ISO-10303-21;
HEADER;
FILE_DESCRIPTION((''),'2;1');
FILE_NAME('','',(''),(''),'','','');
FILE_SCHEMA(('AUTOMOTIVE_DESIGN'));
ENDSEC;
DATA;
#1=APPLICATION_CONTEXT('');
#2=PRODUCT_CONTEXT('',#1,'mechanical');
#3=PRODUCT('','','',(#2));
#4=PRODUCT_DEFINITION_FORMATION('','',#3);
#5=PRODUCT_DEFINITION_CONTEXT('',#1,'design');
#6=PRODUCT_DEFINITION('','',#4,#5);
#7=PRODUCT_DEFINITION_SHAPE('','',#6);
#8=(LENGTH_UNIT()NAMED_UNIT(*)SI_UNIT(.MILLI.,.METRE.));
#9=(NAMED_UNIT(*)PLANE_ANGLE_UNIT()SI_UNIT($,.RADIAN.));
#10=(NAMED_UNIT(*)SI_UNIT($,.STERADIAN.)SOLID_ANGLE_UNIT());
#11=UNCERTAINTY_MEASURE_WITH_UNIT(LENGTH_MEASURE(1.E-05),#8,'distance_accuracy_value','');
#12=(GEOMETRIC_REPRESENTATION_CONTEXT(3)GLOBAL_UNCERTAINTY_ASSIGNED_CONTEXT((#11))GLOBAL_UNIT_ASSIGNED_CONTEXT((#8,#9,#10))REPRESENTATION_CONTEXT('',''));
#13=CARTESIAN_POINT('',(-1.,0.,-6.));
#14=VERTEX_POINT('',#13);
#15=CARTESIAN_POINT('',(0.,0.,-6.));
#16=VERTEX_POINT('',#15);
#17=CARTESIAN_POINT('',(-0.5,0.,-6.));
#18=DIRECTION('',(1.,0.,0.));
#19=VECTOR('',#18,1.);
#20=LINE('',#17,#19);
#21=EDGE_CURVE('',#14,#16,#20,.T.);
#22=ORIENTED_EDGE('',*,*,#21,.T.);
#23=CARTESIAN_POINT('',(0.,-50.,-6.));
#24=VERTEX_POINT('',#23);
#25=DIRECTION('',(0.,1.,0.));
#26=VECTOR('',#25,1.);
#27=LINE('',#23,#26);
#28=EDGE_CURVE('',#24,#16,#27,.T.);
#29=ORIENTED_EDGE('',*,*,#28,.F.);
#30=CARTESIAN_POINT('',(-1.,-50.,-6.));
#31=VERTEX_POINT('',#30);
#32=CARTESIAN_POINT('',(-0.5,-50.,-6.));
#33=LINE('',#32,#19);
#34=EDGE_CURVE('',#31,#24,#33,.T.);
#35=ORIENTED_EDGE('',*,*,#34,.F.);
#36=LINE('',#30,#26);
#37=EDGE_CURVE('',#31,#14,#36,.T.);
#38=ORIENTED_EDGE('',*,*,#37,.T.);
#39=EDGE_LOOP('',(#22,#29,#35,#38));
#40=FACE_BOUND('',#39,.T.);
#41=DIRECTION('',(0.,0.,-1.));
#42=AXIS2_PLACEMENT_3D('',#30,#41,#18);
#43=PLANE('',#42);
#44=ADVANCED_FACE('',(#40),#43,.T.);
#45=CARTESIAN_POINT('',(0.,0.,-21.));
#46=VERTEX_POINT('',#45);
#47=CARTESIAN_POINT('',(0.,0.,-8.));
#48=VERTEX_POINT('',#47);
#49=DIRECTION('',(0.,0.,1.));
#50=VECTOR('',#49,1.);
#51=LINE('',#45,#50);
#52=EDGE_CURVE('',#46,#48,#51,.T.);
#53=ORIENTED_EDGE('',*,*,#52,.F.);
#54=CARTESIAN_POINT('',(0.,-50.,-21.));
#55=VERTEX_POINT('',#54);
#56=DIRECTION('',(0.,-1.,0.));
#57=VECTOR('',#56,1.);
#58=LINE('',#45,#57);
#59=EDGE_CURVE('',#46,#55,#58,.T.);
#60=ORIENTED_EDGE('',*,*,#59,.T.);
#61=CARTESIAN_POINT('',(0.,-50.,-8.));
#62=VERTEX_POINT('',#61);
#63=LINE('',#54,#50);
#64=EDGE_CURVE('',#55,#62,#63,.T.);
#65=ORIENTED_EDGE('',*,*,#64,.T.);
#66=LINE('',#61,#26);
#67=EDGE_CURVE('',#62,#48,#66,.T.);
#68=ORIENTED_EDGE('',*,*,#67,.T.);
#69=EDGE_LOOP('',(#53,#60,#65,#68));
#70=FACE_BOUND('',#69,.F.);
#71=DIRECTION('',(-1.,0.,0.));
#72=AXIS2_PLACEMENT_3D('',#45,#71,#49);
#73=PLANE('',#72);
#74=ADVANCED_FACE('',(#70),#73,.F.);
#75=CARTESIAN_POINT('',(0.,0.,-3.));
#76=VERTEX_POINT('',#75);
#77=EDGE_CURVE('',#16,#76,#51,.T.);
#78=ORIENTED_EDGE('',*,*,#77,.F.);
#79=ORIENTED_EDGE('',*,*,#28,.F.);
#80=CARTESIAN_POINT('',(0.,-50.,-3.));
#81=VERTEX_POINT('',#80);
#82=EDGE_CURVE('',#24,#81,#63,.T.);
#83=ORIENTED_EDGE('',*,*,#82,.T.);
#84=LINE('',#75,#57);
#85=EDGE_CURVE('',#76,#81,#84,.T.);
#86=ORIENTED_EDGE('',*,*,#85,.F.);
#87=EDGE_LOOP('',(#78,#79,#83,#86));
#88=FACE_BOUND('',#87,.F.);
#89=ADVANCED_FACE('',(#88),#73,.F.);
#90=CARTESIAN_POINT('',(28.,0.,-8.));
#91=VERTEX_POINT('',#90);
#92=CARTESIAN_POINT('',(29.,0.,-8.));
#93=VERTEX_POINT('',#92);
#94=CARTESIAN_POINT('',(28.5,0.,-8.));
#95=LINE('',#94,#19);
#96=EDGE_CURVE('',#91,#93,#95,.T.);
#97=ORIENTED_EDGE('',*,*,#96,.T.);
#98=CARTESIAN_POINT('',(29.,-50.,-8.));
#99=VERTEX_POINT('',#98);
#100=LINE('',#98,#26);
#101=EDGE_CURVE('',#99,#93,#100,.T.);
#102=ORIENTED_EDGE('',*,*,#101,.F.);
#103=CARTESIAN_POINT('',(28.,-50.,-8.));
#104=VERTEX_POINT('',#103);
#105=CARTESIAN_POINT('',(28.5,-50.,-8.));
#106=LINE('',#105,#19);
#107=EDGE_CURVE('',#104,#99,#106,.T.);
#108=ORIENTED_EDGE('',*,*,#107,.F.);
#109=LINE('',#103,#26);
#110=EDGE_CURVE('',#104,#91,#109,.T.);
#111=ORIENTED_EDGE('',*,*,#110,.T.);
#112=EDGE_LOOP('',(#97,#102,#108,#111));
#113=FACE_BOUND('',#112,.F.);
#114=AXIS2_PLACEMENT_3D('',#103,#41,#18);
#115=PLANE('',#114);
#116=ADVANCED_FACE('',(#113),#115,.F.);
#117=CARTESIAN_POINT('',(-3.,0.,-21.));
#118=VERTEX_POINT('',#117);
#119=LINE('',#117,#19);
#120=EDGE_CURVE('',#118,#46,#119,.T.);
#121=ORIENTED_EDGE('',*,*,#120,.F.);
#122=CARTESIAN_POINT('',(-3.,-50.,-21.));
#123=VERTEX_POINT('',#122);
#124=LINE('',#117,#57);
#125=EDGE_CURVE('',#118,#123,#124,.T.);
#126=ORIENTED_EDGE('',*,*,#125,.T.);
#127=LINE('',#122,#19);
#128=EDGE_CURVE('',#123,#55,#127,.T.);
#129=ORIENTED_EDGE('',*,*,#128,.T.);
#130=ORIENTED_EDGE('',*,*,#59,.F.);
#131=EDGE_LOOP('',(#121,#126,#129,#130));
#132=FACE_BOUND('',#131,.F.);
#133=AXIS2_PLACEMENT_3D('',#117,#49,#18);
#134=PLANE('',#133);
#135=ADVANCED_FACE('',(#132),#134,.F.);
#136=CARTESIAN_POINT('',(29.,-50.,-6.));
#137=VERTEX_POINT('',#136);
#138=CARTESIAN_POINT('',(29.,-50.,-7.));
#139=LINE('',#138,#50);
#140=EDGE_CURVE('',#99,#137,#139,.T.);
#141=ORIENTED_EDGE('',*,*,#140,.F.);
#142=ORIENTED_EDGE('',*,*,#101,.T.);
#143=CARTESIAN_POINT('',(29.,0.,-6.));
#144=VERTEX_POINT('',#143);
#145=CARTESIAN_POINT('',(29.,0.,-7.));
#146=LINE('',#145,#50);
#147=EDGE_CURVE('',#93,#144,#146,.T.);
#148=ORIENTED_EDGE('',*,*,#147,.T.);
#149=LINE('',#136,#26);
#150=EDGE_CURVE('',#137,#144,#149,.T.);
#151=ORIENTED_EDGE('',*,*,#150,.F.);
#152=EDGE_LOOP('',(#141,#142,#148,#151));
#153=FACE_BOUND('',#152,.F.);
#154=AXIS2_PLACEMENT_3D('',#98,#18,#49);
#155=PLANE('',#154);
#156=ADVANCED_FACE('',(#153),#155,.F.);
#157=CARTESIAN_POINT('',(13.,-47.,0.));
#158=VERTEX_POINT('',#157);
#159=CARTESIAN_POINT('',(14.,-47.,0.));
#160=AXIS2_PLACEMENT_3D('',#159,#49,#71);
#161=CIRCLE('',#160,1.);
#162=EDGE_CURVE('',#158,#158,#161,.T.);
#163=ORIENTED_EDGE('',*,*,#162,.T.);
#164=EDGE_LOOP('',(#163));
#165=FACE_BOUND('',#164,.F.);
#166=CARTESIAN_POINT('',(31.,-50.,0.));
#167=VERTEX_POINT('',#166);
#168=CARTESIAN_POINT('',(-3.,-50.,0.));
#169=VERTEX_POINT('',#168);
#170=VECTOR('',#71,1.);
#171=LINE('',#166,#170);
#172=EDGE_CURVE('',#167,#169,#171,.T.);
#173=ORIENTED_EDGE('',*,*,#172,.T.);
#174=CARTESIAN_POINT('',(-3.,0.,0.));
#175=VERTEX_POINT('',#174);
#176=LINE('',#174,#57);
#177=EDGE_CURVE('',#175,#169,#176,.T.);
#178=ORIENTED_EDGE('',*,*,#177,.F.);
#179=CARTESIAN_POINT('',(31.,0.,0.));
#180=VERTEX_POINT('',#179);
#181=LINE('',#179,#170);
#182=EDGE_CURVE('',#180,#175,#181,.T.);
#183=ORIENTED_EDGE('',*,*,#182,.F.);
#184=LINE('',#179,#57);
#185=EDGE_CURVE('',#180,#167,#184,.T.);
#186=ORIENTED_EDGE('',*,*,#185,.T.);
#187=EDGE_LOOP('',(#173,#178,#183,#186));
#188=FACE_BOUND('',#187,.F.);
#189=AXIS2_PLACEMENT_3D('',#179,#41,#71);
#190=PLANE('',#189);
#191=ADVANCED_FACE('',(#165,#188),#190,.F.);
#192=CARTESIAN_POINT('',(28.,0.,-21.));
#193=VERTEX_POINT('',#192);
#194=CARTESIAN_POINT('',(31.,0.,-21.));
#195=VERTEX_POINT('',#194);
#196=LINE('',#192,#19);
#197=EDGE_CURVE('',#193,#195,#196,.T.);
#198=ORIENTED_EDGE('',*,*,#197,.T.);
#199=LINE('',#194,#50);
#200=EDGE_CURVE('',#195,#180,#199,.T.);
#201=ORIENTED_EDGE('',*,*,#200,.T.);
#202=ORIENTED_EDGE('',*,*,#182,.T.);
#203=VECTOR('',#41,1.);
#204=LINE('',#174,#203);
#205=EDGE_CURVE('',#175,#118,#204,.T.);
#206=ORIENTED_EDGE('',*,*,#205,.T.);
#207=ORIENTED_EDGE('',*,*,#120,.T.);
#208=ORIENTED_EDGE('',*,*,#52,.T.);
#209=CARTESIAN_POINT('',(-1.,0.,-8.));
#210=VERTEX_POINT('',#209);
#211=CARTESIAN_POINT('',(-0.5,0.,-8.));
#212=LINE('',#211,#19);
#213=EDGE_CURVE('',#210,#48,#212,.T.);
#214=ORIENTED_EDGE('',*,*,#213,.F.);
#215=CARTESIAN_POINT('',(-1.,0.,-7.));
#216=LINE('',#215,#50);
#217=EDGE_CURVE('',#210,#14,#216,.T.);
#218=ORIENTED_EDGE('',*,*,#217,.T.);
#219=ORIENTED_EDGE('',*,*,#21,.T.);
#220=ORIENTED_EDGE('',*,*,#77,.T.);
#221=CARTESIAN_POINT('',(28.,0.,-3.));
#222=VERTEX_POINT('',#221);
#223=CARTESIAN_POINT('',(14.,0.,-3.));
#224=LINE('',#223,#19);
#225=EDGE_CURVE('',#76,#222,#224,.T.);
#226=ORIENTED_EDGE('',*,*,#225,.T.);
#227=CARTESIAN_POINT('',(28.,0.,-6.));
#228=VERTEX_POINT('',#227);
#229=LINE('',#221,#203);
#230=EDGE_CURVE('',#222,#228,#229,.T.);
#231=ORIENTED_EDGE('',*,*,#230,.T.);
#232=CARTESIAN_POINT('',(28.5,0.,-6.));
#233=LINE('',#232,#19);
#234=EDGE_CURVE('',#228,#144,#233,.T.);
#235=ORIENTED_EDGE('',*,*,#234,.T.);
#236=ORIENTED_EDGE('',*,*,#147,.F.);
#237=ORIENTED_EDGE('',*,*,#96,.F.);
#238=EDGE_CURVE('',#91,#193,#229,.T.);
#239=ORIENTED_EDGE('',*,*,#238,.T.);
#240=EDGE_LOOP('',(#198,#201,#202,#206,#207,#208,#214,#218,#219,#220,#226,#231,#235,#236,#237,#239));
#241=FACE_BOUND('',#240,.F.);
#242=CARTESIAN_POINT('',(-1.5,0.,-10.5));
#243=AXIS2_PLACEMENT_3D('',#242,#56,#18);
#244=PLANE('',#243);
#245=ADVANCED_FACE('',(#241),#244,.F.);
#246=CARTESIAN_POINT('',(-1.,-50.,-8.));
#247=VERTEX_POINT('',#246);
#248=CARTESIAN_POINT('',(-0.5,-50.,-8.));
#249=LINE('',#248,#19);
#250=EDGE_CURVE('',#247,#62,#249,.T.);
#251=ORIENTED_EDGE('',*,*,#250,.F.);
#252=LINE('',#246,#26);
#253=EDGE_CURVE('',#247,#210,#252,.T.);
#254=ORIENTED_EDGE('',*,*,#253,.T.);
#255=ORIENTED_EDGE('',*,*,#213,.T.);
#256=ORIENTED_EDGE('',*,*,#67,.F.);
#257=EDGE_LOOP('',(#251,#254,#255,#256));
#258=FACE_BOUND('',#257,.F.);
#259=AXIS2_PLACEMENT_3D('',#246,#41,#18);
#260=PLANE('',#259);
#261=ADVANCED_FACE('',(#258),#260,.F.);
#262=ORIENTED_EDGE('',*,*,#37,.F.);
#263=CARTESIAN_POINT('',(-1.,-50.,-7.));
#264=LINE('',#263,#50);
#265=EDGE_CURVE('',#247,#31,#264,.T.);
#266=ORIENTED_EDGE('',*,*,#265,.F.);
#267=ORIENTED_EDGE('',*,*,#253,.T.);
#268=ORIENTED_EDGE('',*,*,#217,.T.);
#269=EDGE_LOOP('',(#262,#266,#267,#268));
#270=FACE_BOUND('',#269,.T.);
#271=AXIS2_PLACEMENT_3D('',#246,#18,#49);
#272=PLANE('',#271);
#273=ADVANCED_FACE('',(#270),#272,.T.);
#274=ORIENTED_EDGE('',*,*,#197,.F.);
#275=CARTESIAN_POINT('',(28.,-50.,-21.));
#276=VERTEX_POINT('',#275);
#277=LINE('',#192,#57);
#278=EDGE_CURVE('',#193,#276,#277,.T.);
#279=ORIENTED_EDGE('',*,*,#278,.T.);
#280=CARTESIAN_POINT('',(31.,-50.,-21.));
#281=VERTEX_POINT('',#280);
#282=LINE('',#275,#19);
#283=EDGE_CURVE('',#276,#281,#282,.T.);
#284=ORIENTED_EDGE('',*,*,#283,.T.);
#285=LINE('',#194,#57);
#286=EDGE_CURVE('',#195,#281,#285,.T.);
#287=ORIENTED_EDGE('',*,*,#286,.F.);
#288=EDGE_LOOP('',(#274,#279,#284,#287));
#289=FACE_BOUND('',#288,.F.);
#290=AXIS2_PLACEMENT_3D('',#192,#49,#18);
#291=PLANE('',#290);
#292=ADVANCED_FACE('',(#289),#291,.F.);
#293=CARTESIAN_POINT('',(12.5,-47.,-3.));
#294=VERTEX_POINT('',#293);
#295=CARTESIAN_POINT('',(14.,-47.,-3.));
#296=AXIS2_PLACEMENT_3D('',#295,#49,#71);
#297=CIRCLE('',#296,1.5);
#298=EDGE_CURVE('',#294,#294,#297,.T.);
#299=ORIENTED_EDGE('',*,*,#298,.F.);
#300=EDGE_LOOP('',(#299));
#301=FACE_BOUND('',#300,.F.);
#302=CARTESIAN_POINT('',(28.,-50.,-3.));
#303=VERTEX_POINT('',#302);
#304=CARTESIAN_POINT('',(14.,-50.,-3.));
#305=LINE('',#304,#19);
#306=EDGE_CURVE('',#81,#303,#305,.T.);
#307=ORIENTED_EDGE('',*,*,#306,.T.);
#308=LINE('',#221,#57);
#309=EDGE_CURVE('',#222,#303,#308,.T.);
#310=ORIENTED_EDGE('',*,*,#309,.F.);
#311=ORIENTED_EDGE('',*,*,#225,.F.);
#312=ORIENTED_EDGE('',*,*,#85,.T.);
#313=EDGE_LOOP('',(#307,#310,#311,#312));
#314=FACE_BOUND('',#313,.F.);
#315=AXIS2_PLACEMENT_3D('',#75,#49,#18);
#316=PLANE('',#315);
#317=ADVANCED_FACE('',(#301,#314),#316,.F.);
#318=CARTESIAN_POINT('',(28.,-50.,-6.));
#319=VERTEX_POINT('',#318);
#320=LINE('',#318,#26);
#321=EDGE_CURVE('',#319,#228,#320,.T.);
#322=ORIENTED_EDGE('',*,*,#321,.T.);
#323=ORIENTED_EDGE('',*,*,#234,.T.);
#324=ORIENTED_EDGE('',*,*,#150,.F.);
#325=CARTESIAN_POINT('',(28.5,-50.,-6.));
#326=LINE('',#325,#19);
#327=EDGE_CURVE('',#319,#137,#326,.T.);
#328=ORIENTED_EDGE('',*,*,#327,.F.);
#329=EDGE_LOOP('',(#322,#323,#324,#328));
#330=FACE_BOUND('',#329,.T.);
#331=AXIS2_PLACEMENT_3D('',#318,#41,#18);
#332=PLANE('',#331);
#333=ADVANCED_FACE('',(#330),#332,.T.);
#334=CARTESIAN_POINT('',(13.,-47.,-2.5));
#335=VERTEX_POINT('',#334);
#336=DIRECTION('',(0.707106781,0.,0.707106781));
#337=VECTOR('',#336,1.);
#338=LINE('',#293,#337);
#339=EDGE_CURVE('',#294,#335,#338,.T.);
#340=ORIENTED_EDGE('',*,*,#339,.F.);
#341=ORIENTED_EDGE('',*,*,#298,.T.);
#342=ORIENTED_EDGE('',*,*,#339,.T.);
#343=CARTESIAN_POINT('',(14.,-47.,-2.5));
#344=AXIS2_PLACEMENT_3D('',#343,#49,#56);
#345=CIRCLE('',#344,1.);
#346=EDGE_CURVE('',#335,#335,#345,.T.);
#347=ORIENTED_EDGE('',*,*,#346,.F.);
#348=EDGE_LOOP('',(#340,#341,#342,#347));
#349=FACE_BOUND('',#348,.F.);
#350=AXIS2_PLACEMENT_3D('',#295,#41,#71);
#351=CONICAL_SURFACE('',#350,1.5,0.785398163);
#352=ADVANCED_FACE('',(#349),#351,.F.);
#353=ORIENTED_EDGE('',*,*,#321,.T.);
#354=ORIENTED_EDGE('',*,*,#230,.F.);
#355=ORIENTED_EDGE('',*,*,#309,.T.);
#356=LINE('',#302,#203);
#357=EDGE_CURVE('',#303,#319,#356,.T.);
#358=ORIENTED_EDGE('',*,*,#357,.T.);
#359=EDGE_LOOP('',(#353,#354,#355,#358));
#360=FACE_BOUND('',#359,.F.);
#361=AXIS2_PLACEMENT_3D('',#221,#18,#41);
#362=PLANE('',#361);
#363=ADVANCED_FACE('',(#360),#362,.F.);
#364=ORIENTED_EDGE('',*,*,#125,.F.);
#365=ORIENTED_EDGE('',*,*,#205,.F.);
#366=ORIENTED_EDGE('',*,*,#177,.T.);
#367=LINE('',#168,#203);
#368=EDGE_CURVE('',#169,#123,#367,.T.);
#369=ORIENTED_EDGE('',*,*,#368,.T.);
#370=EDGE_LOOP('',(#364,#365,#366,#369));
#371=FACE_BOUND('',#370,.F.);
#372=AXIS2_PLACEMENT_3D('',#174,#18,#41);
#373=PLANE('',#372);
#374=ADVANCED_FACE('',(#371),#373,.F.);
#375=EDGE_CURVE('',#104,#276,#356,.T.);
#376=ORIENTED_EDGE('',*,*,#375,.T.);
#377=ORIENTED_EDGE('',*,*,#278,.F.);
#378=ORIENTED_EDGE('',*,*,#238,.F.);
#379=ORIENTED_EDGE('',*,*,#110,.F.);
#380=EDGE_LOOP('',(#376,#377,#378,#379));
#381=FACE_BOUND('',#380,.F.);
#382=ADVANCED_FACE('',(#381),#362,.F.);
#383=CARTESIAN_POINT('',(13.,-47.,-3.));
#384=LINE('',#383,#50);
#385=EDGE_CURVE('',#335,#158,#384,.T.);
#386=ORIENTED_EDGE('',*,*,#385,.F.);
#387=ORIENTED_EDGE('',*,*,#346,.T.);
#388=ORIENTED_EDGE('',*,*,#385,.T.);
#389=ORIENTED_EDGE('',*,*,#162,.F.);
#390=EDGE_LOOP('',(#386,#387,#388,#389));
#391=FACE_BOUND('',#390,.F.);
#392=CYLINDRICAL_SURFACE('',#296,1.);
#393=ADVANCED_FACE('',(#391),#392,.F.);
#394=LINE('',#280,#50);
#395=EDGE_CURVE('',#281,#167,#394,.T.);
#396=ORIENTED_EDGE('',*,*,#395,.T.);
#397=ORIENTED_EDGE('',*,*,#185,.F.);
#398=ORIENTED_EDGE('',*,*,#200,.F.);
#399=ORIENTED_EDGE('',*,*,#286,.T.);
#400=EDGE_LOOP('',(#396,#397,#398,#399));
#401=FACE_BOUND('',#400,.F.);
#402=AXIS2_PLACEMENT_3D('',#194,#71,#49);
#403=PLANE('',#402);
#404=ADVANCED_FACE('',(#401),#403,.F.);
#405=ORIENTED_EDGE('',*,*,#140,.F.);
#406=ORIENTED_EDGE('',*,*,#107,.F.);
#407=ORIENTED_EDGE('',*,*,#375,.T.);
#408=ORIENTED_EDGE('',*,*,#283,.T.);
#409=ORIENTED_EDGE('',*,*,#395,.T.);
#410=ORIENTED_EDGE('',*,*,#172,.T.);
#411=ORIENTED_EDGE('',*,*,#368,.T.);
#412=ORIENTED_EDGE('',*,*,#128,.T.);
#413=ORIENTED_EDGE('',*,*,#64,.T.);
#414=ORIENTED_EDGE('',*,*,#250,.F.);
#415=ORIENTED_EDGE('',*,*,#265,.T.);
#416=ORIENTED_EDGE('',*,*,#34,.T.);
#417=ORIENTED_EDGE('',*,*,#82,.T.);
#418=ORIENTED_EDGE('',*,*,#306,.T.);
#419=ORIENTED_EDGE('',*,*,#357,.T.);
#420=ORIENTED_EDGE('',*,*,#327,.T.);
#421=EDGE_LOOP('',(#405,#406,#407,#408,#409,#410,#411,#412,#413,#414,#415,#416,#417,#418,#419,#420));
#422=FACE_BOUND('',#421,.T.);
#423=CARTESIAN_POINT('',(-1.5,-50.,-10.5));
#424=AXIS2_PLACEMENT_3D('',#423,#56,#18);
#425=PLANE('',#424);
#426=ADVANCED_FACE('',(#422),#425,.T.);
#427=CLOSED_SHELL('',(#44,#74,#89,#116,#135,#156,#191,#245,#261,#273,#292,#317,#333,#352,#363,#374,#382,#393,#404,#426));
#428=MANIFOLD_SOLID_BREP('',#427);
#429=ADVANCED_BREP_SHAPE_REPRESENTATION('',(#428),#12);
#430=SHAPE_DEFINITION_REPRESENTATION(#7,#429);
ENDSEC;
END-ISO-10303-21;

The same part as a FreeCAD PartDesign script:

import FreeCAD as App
import Part
import Sketcher
from FreeCAD import Vector
Q = App.Units.Quantity

doc = App.newDocument("Part")
body = doc.addObject("PartDesign::Body", "Body")

sketch1 = doc.addObject("Sketcher::SketchObject", "Sketch")
body.addObject(sketch1)
sketch1.AttachmentSupport = (doc.XZ_Plane, [""])
sketch1.MapMode = "FlatFace"
sketch1.addGeometry([
    Part.LineSegment(Vector(-3, 0, 0), Vector(-3, -21, 0)),
    Part.LineSegment(Vector(-3, -21, 0), Vector(0, -21, 0)),
    Part.LineSegment(Vector(0, -21, 0), Vector(0, -3, 0)),
    Part.LineSegment(Vector(0, -3, 0), Vector(28, -3, 0)),
    Part.LineSegment(Vector(28, -3, 0), Vector(28, -21, 0)),
    Part.LineSegment(Vector(28, -21, 0), Vector(31, -21, 0)),
    Part.LineSegment(Vector(31, -21, 0), Vector(31, 0, 0)),
    Part.LineSegment(Vector(31, 0, 0), Vector(-3, 0, 0)),
], False)
sketch1.addConstraint([
    Sketcher.Constraint("Coincident", 0, 2, 1, 1),
    Sketcher.Constraint("Coincident", 1, 2, 2, 1),
    Sketcher.Constraint("Coincident", 2, 2, 3, 1),
    Sketcher.Constraint("Coincident", 3, 2, 4, 1),
    Sketcher.Constraint("Coincident", 4, 2, 5, 1),
    Sketcher.Constraint("Coincident", 5, 2, 6, 1),
    Sketcher.Constraint("Coincident", 6, 2, 7, 1),
    Sketcher.Constraint("Coincident", 7, 2, 0, 1),
    Sketcher.Constraint("Vertical", 0),
    Sketcher.Constraint("Horizontal", 1),
    Sketcher.Constraint("Vertical", 2),
    Sketcher.Constraint("Horizontal", 3),
    Sketcher.Constraint("Vertical", 4),
    Sketcher.Constraint("Horizontal", 5),
    Sketcher.Constraint("Vertical", 6),
    Sketcher.Constraint("Horizontal", 7),
    Sketcher.Constraint("PointOnObject", 1, 2, -2),
    Sketcher.Constraint("PointOnObject", 6, 2, -1),
    Sketcher.Constraint("Horizontal", 1, 2, 4, 2),
    Sketcher.Constraint("Equal", 1, 5),
    Sketcher.Constraint("DistanceX", 1, 1, 1, 2, Q("3 mm")),
    Sketcher.Constraint("DistanceX", 3, 1, 3, 2, Q("28 mm")),
    Sketcher.Constraint("DistanceY", 0, 2, 0, 1, Q("21 mm")),
    Sketcher.Constraint("DistanceY", 2, 1, 2, 2, Q("18 mm")),
])
pad1 = doc.addObject("PartDesign::Pad", "Pad")
body.addObject(pad1)
pad1.Profile = sketch1
pad1.Length = 50

sketch2 = doc.addObject("Sketcher::SketchObject", "Sketch001")
body.addObject(sketch2)
sketch2.AttachmentSupport = (doc.XZ_Plane, [""])
sketch2.MapMode = "FlatFace"
sketch2.AttachmentOffset = App.Placement(Vector(0, 0, 50), App.Rotation())
sketch2.addGeometry([
    Part.LineSegment(Vector(-1, -6, 0), Vector(-1, -8, 0)),
    Part.LineSegment(Vector(-1, -8, 0), Vector(0, -8, 0)),
    Part.LineSegment(Vector(0, -8, 0), Vector(0, -6, 0)),
    Part.LineSegment(Vector(0, -6, 0), Vector(-1, -6, 0)),
    Part.LineSegment(Vector(28, -6, 0), Vector(28, -8, 0)),
    Part.LineSegment(Vector(28, -8, 0), Vector(29, -8, 0)),
    Part.LineSegment(Vector(29, -8, 0), Vector(29, -6, 0)),
    Part.LineSegment(Vector(29, -6, 0), Vector(28, -6, 0)),
], False)
sketch2.addConstraint([
    Sketcher.Constraint("Coincident", 0, 2, 1, 1),
    Sketcher.Constraint("Coincident", 1, 2, 2, 1),
    Sketcher.Constraint("Coincident", 2, 2, 3, 1),
    Sketcher.Constraint("Coincident", 3, 2, 0, 1),
    Sketcher.Constraint("Coincident", 4, 2, 5, 1),
    Sketcher.Constraint("Coincident", 5, 2, 6, 1),
    Sketcher.Constraint("Coincident", 6, 2, 7, 1),
    Sketcher.Constraint("Coincident", 7, 2, 4, 1),
    Sketcher.Constraint("Vertical", 0),
    Sketcher.Constraint("Horizontal", 1),
    Sketcher.Constraint("Vertical", 2),
    Sketcher.Constraint("Horizontal", 3),
    Sketcher.Constraint("Vertical", 4),
    Sketcher.Constraint("Horizontal", 5),
    Sketcher.Constraint("Vertical", 6),
    Sketcher.Constraint("Horizontal", 7),
    Sketcher.Constraint("PointOnObject", 1, 2, -2),
    Sketcher.Constraint("Horizontal", 1, 2, 4, 2),
    Sketcher.Constraint("Horizontal", 3, 2, 6, 2),
    Sketcher.Constraint("Equal", 3, 5),
    Sketcher.Constraint("DistanceX", 1, 1, 1, 2, Q("1 mm")),
    Sketcher.Constraint("DistanceY", 0, 2, 0, 1, Q("2 mm")),
    Sketcher.Constraint("DistanceY", 0, 2, -1, 1, Q("8 mm")),
    Sketcher.Constraint("DistanceX", -1, 1, 4, 2, Q("28 mm")),
])
pocket1 = doc.addObject("PartDesign::Pocket", "Pocket")
body.addObject(pocket1)
pocket1.Profile = sketch2
pocket1.Length = 50

sketch3 = doc.addObject("Sketcher::SketchObject", "Sketch002")
body.addObject(sketch3)
sketch3.AttachmentSupport = (doc.XY_Plane, [""])
sketch3.MapMode = "FlatFace"
sketch3.AttachmentOffset = App.Placement(Vector(0, 0, -3), App.Rotation())
sketch3.addGeometry(Part.Circle(Vector(14, -47, 0), Vector(0, 0, 1), 1), False)
sketch3.addConstraint([
    Sketcher.Constraint("Diameter", 0, Q("2 mm")),
    Sketcher.Constraint("DistanceX", -1, 1, 0, 3, Q("14 mm")),
    Sketcher.Constraint("DistanceY", 0, 3, -1, 1, Q("47 mm")),
])
doc.recompute()
hole = doc.addObject("PartDesign::Hole", "Hole")
body.addObject(hole)
hole.Profile = sketch3
hole.ThreadType = "None"
hole.Diameter = 2
hole.DepthType = "ThroughAll"
hole.HoleCutType = "Countersink"
hole.HoleCutDiameter = 3
hole.HoleCutCountersinkAngle = 90
hole.Reversed = True

doc.recompute()
